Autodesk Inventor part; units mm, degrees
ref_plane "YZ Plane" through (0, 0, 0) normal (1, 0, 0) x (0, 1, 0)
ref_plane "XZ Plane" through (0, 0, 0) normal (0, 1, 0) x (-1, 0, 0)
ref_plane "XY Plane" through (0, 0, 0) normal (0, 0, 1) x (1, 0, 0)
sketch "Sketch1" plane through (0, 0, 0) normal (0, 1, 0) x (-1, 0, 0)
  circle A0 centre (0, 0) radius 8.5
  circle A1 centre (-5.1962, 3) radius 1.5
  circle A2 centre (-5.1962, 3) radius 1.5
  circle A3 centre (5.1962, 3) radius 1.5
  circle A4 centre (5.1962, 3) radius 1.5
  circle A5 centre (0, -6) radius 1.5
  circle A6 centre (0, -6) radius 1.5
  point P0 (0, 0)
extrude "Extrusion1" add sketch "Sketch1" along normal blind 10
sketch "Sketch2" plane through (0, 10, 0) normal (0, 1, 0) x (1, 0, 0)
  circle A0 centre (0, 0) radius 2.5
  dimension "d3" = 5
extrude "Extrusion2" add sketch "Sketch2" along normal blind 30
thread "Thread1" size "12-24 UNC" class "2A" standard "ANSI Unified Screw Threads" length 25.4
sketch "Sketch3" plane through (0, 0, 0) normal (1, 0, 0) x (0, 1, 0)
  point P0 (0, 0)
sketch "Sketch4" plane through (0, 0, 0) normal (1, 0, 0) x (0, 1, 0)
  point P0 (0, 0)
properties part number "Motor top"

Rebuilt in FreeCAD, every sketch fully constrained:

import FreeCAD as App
import Part
import Sketcher
Q = App.Units.Quantity

doc = App.newDocument("Part")
params = doc.addObject("Spreadsheet::Sheet", "Params")
for row, (alias, value) in enumerate([
    ("sketch1_diameter", "17 mm"),
    ("sketch1_diameter2", "3 mm"),
    ("pad1_length", "10 mm"),
    ("sketch2_diameter", "5 mm"),
    ("pad2_length", "30 mm"),
], start=1):
    params.set(f"A{row}", alias)
    params.set(f"B{row}", "=" + value)
    params.setAlias(f"B{row}", alias)

body = doc.addObject("PartDesign::Body", "Body")

sketch1 = body.newObject("Sketcher::SketchObject", "Sketch")
sketch1.AttachmentSupport = (doc.getObject("XZ_Plane"), [""])
sketch1.MapMode = "FlatFace"
sketch1.addGeometry([
    Part.Circle(App.Vector(0, 0, 0), App.Vector(0, 0, 1), 8.5),
    Part.Circle(App.Vector(0, -6, 0), App.Vector(0, 0, 1), 1.5),
    Part.Circle(App.Vector(5.1962, 3, 0), App.Vector(0, 0, 1), 1.5),
    Part.Circle(App.Vector(-5.1962, 3, 0), App.Vector(0, 0, 1), 1.5),
], False)
sketch1.addConstraint([
    Sketcher.Constraint("Coincident", 0, 3, -1, 1),
    Sketcher.Constraint("Equal", 1, 2),
    Sketcher.Constraint("Equal", 2, 3),
    Sketcher.Constraint("Symmetric", 2, 3, 3, 3, -2),
    Sketcher.Constraint("PointOnObject", 1, 3, -2),
    Sketcher.Constraint("Diameter", 0, Q("17 mm")),
    Sketcher.Constraint("Diameter", 1, Q("3 mm")),
    Sketcher.Constraint("DistanceY", 1, 3, -1, 1, Q("6 mm")),
    Sketcher.Constraint("DistanceY", -1, 1, 2, 3, Q("3 mm")),
    Sketcher.Constraint("DistanceX", -1, 1, 2, 3, Q("5.1962 mm")),
])
sketch1.setExpression("Constraints[5]", "Params.sketch1_diameter")
sketch1.setExpression("Constraints[6]", "Params.sketch1_diameter2")
pad1 = body.newObject("PartDesign::Pad", "Pad")
pad1.Profile = sketch1
pad1.setExpression("Length", "Params.pad1_length")
pad1.Reversed = True

sketch2 = body.newObject("Sketcher::SketchObject", "Sketch001")
sketch2.AttachmentSupport = (doc.getObject("XZ_Plane"), [""])
sketch2.MapMode = "FlatFace"
sketch2.AttachmentOffset = App.Placement(App.Vector(0, 0, -10), App.Rotation())
sketch2.addGeometry(Part.Circle(App.Vector(0, 0, 0), App.Vector(0, 0, 1), 2.5), False)
sketch2.addConstraint([
    Sketcher.Constraint("Coincident", 0, 3, -1, 1),
    Sketcher.Constraint("Diameter", 0, Q("5 mm")),
])
sketch2.setExpression("Constraints[1]", "Params.sketch2_diameter")
pad2 = body.newObject("PartDesign::Pad", "Pad001")
pad2.Profile = sketch2
pad2.setExpression("Length", "Params.pad2_length")
pad2.Reversed = True

doc.recompute()
